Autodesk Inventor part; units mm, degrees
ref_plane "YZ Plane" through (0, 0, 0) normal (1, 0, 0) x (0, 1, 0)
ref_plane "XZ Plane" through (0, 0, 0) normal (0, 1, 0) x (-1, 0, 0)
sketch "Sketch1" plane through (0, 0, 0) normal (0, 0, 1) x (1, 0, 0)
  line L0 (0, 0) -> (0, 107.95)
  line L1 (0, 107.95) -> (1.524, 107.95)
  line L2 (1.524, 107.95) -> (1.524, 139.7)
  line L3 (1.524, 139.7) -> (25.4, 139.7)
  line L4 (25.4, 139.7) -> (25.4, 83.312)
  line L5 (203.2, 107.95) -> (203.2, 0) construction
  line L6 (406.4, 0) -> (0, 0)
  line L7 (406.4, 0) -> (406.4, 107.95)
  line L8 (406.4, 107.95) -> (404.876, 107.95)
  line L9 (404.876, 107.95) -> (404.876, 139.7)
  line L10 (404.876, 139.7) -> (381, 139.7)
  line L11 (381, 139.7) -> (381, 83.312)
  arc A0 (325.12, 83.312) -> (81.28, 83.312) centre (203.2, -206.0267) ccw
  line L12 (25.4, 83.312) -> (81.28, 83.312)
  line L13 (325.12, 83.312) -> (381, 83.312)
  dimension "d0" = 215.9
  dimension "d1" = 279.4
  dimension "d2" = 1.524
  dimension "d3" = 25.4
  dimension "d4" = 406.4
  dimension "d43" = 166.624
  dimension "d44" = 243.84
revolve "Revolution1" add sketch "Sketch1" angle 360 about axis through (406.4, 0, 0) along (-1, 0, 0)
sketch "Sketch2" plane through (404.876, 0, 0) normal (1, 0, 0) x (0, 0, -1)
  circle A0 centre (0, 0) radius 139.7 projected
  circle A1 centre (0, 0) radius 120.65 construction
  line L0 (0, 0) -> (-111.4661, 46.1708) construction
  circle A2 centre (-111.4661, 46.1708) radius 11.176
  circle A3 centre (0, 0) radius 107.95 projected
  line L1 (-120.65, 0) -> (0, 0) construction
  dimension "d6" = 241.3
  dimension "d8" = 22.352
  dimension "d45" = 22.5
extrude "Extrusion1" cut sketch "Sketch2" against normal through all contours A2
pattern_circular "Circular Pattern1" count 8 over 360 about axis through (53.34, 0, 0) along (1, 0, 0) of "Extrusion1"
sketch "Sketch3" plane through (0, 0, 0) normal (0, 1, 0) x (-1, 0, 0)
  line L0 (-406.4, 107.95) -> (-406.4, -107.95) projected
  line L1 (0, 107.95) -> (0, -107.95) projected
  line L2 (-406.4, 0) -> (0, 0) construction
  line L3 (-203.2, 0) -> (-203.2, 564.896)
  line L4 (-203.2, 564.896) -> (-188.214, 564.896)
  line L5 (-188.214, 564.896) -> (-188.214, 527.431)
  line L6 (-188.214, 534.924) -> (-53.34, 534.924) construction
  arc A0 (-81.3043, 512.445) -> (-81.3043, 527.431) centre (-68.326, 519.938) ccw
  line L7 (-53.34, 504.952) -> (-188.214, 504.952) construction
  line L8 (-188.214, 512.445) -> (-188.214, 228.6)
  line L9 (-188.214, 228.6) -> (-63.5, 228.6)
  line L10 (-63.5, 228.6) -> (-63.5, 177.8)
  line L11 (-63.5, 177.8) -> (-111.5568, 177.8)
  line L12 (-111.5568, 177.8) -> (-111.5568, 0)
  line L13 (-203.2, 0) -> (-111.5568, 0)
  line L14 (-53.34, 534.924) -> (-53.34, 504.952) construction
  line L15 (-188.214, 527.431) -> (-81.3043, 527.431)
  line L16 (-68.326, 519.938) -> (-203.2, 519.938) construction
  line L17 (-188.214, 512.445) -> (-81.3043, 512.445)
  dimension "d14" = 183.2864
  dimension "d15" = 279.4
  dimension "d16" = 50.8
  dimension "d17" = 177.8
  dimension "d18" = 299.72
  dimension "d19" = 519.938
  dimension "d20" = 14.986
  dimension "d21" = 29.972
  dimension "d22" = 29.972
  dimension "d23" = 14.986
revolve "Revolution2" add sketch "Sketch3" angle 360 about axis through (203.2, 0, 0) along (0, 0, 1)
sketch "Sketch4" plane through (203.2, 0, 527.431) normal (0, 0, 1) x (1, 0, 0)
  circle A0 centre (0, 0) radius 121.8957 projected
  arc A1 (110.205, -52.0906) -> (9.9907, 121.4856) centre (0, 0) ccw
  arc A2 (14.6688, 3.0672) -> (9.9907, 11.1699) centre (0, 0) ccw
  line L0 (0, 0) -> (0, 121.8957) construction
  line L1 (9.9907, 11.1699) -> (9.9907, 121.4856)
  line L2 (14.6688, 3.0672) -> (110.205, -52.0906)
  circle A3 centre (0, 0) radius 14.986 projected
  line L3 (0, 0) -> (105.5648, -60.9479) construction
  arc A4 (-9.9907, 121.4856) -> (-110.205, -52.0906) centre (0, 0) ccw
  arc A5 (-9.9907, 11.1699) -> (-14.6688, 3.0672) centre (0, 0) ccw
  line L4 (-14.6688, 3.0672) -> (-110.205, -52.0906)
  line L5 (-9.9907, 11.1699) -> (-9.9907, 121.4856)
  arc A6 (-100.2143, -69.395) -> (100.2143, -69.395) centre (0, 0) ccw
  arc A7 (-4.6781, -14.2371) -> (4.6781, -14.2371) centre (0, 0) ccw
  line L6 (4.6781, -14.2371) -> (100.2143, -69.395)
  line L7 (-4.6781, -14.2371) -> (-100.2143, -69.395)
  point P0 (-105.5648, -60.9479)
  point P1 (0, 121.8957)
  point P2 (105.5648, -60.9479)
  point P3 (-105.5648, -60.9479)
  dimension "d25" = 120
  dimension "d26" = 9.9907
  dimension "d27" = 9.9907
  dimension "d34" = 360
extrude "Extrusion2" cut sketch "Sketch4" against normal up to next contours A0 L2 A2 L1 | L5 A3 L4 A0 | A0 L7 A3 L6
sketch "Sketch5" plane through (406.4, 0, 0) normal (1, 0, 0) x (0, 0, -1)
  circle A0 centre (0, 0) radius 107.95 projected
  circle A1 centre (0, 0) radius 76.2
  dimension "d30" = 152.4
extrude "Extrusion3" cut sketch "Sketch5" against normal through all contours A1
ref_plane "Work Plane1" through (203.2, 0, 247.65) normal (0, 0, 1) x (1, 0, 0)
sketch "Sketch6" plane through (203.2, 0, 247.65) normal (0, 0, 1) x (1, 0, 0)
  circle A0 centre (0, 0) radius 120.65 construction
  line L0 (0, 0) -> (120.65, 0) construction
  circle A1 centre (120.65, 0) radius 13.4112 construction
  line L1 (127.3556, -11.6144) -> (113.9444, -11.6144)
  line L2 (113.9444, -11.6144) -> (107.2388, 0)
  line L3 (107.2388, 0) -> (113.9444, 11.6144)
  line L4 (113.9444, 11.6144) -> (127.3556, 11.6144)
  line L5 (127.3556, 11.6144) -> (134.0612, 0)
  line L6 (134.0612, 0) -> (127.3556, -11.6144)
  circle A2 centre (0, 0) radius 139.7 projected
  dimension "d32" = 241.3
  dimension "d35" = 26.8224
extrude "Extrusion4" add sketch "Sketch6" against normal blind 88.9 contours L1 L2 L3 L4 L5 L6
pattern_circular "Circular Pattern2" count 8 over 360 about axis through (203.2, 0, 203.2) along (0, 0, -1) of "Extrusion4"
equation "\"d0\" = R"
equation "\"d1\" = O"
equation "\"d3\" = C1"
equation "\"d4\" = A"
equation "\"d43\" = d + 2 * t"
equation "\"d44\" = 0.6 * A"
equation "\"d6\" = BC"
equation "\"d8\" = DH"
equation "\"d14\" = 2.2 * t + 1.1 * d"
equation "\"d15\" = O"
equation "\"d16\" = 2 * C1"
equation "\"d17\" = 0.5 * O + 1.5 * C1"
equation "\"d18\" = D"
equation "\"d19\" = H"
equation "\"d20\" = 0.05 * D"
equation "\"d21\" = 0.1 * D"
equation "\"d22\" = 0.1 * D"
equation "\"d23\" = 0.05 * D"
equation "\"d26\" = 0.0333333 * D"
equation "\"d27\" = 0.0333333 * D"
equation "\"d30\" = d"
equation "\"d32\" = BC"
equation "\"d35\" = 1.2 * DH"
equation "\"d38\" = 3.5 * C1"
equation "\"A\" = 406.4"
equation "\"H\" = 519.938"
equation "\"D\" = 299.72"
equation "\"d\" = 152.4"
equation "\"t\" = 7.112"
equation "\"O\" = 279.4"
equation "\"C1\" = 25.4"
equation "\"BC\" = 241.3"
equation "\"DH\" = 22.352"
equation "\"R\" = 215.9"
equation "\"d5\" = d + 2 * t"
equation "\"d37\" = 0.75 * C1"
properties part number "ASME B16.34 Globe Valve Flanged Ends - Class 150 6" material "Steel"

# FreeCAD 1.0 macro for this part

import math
import FreeCAD as App
import Part
import Sketcher
Q = App.Units.Quantity


def add_polygon(sketch, points):
    """Adds a closed chain of lines whose ends are joined by coincident constraints."""
    first, n = sketch.GeometryCount, len(points)
    for a, b in zip(points, points[1:] + points[:1]):
        sketch.addGeometry(Part.LineSegment(App.Vector(*a, 0), App.Vector(*b, 0)), False)
    for i in range(n):
        sketch.addConstraint(Sketcher.Constraint("Coincident", first + i, 2, first + (i + 1) % n, 1))

doc = App.newDocument("Part")
body = doc.addObject("PartDesign::Body", "Body")

# Sketch on XY plane
sketch1 = body.newObject("Sketcher::SketchObject", "Sketch")
sketch1.AttachmentSupport = (doc.getObject("XY_Plane"), [""])
sketch1.MapMode = "FlatFace"
sketch1.addGeometry([
    Part.LineSegment(App.Vector(0, 108, 0), App.Vector(0, 0, 0)),  # 0
    Part.LineSegment(App.Vector(0, 0, 0), App.Vector(406.4, 0, 0)),  # 1
    Part.LineSegment(App.Vector(406.4, 0, 0), App.Vector(406.4, 108, 0)),  # 2
    Part.LineSegment(App.Vector(406.4, 108, 0), App.Vector(404.9, 108, 0)),  # 3
    Part.LineSegment(App.Vector(404.9, 108, 0), App.Vector(404.9, 139.7, 0)),  # 4
    Part.LineSegment(App.Vector(404.9, 139.7, 0), App.Vector(381, 139.7, 0)),  # 5
    Part.LineSegment(App.Vector(381, 139.7, 0), App.Vector(381, 83.3, 0)),  # 6
    Part.LineSegment(App.Vector(381, 83.3, 0), App.Vector(325.1, 83.3, 0)),  # 7
    Part.ArcOfCircle(Part.Circle(App.Vector(203.2, -206, 0), App.Vector(0, 0, 1), 314), math.radians(67), math.radians(113)),  # 8
    Part.LineSegment(App.Vector(81.3, 83.3, 0), App.Vector(25.4, 83.3, 0)),  # 9
    Part.LineSegment(App.Vector(25.4, 83.3, 0), App.Vector(25.4, 139.7, 0)),  # 10
    Part.LineSegment(App.Vector(25.4, 139.7, 0), App.Vector(1.5, 139.7, 0)),  # 11
    Part.LineSegment(App.Vector(1.5, 139.7, 0), App.Vector(1.5, 108, 0)),  # 12
    Part.LineSegment(App.Vector(1.5, 108, 0), App.Vector(0, 108, 0)),  # 13
], False)
sketch1.addConstraint([
    Sketcher.Constraint("Coincident", 0, 2, 1, 1),
    Sketcher.Constraint("Coincident", 1, 2, 2, 1),
    Sketcher.Constraint("Coincident", 2, 2, 3, 1),
    Sketcher.Constraint("Coincident", 3, 2, 4, 1),
    Sketcher.Constraint("Coincident", 4, 2, 5, 1),
    Sketcher.Constraint("Coincident", 5, 2, 6, 1),
    Sketcher.Constraint("Coincident", 6, 2, 7, 1),
    Sketcher.Constraint("Coincident", 7, 2, 8, 1),
    Sketcher.Constraint("Coincident", 8, 2, 9, 1),
    Sketcher.Constraint("Coincident", 9, 2, 10, 1),
    Sketcher.Constraint("Coincident", 10, 2, 11, 1),
    Sketcher.Constraint("Coincident", 11, 2, 12, 1),
    Sketcher.Constraint("Coincident", 12, 2, 13, 1),
    Sketcher.Constraint("Coincident", 13, 2, 0, 1),
    Sketcher.Constraint("Vertical", 0),
    Sketcher.Constraint("Horizontal", 1),
    Sketcher.Constraint("Vertical", 2),
    Sketcher.Constraint("Horizontal", 3),
    Sketcher.Constraint("Vertical", 4),
    Sketcher.Constraint("Horizontal", 5),
    Sketcher.Constraint("Vertical", 6),
    Sketcher.Constraint("Horizontal", 7),
    Sketcher.Constraint("Horizontal", 9),
    Sketcher.Constraint("Vertical", 10),
    Sketcher.Constraint("Horizontal", 11),
    Sketcher.Constraint("Vertical", 12),
    Sketcher.Constraint("Horizontal", 13),
    Sketcher.Constraint("Coincident", 0, 2, -1, 1),
    Sketcher.Constraint("Horizontal", 7, 2, 8, 2),
    Sketcher.Constraint("Horizontal", 5, 2, 10, 2),
    Sketcher.Constraint("Horizontal", 3, 2, 12, 2),
    Sketcher.Constraint("Equal", 7, 9),
    Sketcher.Constraint("Equal", 5, 11),
    Sketcher.Constraint("Equal", 3, 13),
    Sketcher.Constraint("DistanceX", 1, 1, 1, 2, Q("16 in")),
    Sketcher.Constraint("DistanceX", -1, 1, 9, 2, Q("1 in")),
    Sketcher.Constraint("DistanceX", 3, 2, 3, 1, Q("0.06 in")),
    Sketcher.Constraint("DistanceX", 8, 2, 7, 2, Q("9.6 in")),
    Sketcher.Constraint("DistanceY", 0, 2, 0, 1, Q("4.25 in")),
    Sketcher.Constraint("DistanceY", 4, 1, 4, 2, Q("1.25 in")),
    Sketcher.Constraint("DistanceY", 6, 2, 6, 1, Q("2.22 in")),
    Sketcher.Constraint("Radius", 8, 313.9767),
])
revolution = body.newObject("PartDesign::Revolution", "Revolution")
revolution.Profile = sketch1
revolution.ReferenceAxis = (sketch1, ["H_Axis"])
revolution.Angle = 360

# Sketch on YZ plane
sketch2 = body.newObject("Sketcher::SketchObject", "Sketch001")
sketch2.AttachmentSupport = (doc.getObject("YZ_Plane"), [""])
sketch2.MapMode = "FlatFace"
sketch2.AttachmentOffset = App.Placement(App.Vector(0, 0, 15.94 * 25.4), App.Rotation())
sketch2.addGeometry(Part.Circle(App.Vector(46, 111, 0), App.Vector(0, 0, 1), 11), False)
sketch2.addConstraint([
    Sketcher.Constraint("Diameter", 0, Q("0.88 in")),
    Sketcher.Constraint("DistanceX", -1, 1, 0, 3, 46.1708),
    Sketcher.Constraint("DistanceY", -1, 1, 0, 3, 111.466),
])
pocket1 = body.newObject("PartDesign::Pocket", "Pocket")
pocket1.Profile = sketch2
pocket1.Type = "ThroughAll"
doc.recompute()

polarpattern = body.newObject("PartDesign::PolarPattern", "PolarPattern")
polarpattern.Originals = [pocket1]
polarpattern.Axis = (doc.getObject("X_Axis"), [""])
polarpattern.Angle = 360
polarpattern.Occurrences = 8
body.Tip = polarpattern

# Sketch on XZ plane
sketch3 = body.newObject("Sketcher::SketchObject", "Sketch002")
sketch3.AttachmentSupport = (doc.getObject("XZ_Plane"), [""])
sketch3.MapMode = "FlatFace"
sketch3.addGeometry([
    Part.LineSegment(App.Vector(203, 565, 0), App.Vector(203, 0, 0)),  # 0
    Part.LineSegment(App.Vector(203, 0, 0), App.Vector(112, 0, 0)),  # 1
    Part.LineSegment(App.Vector(112, 0, 0), App.Vector(112, 178, 0)),  # 2
    Part.LineSegment(App.Vector(112, 178, 0), App.Vector(64, 178, 0)),  # 3
    Part.LineSegment(App.Vector(64, 178, 0), App.Vector(64, 229, 0)),  # 4
    Part.LineSegment(App.Vector(64, 229, 0), App.Vector(188, 229, 0)),  # 5
    Part.LineSegment(App.Vector(188, 229, 0), App.Vector(188, 512, 0)),  # 6
    Part.LineSegment(App.Vector(188, 512, 0), App.Vector(81, 512, 0)),  # 7
    Part.ArcOfCircle(Part.Circle(App.Vector(68, 520, 0), App.Vector(0, 0, 1), 15), math.radians(30), math.radians(330)),  # 8
    Part.LineSegment(App.Vector(81, 527, 0), App.Vector(188, 527, 0)),  # 9
    Part.LineSegment(App.Vector(188, 527, 0), App.Vector(188, 565, 0)),  # 10
    Part.LineSegment(App.Vector(188, 565, 0), App.Vector(203, 565, 0)),  # 11
], False)
sketch3.addGeometry(Part.LineSegment(App.Vector(203, 0, 0), App.Vector(203, 565, 0)), True)  # axis
sketch3.addConstraint([
    Sketcher.Constraint("Coincident", 0, 2, 1, 1),
    Sketcher.Constraint("Coincident", 1, 2, 2, 1),
    Sketcher.Constraint("Coincident", 2, 2, 3, 1),
    Sketcher.Constraint("Coincident", 3, 2, 4, 1),
    Sketcher.Constraint("Coincident", 4, 2, 5, 1),
    Sketcher.Constraint("Coincident", 5, 2, 6, 1),
    Sketcher.Constraint("Coincident", 6, 2, 7, 1),
    Sketcher.Constraint("Coincident", 7, 2, 8, 2),
    Sketcher.Constraint("Coincident", 8, 1, 9, 1),
    Sketcher.Constraint("Coincident", 9, 2, 10, 1),
    Sketcher.Constraint("Coincident", 10, 2, 11, 1),
    Sketcher.Constraint("Coincident", 11, 2, 0, 1),
    Sketcher.Constraint("Vertical", 0),
    Sketcher.Constraint("Horizontal", 1),
    Sketcher.Constraint("Vertical", 2),
    Sketcher.Constraint("Horizontal", 3),
    Sketcher.Constraint("Vertical", 4),
    Sketcher.Constraint("Horizontal", 5),
    Sketcher.Constraint("Vertical", 6),
    Sketcher.Constraint("Horizontal", 7),
    Sketcher.Constraint("Horizontal", 9),
    Sketcher.Constraint("Vertical", 10),
    Sketcher.Constraint("Horizontal", 11),
    Sketcher.Constraint("Vertical", 12),
    Sketcher.Constraint("Coincident", 12, 1, 0, 2),
    Sketcher.Constraint("PointOnObject", 0, 2, -1),
    Sketcher.Constraint("Horizontal", 10, 2, 12, 2),
    Sketcher.Constraint("Vertical", 7, 2, 8, 1),
    Sketcher.Constraint("Vertical", 6, 2, 9, 2),
    Sketcher.Constraint("DistanceY", 2, 1, 2, 2, Q("7 in")),
    Sketcher.Constraint("DistanceY", 4, 1, 4, 2, Q("2 in")),
    Sketcher.Constraint("Radius", 8, Q("0.59 in")),
    Sketcher.Constraint("DistanceX", 11, 1, 11, 2, Q("0.59 in")),
    Sketcher.Constraint("DistanceY", -1, 1, 8, 3, Q("20.47 in")),
    Sketcher.Constraint("DistanceY", 7, 2, 8, 1, Q("0.59 in")),
    Sketcher.Constraint("DistanceX", -1, 1, 0, 2, Q("8 in")),
    Sketcher.Constraint("DistanceX", 5, 1, 5, 2, Q("4.91 in")),
    Sketcher.Constraint("DistanceY", 0, 2, 0, 1, Q("22.24 in")),
    Sketcher.Constraint("DistanceX", 1, 2, 1, 1, Q("3.608 in")),
    Sketcher.Constraint("DistanceX", -1, 1, 8, 3, Q("2.69 in")),
])
revolution2 = body.newObject("PartDesign::Revolution", "Revolution001")
revolution2.Profile = sketch3
revolution2.ReferenceAxis = (sketch3, ["Axis0"])
revolution2.Angle = 360

# Sketch on XY plane
sketch4 = body.newObject("Sketcher::SketchObject", "Sketch003")
sketch4.AttachmentSupport = (doc.getObject("XY_Plane"), [""])
sketch4.MapMode = "FlatFace"
sketch4.AttachmentOffset = App.Placement(App.Vector(0, 0, 20.765 * 25.4), App.Rotation())
sketch4.addGeometry([
    Part.ArcOfCircle(Part.Circle(App.Vector(203, 0, 0), App.Vector(0, 0, 1), 122), math.radians(-25), math.radians(85)),  # 0
    Part.LineSegment(App.Vector(213, 121, 0), App.Vector(213, 11, 0)),  # 1
    Part.ArcOfCircle(Part.Circle(App.Vector(203, 0, 0), App.Vector(0, 0, 1), 15), math.radians(12), math.radians(48)),  # 2
    Part.LineSegment(App.Vector(218, 3, 0), App.Vector(313, -52, 0)),  # 3
    Part.LineSegment(App.Vector(193, 11, 0), App.Vector(193, 121, 0)),  # 4
    Part.ArcOfCircle(Part.Circle(App.Vector(203, 0, 0), App.Vector(0, 0, 1), 122), math.radians(95), math.radians(205)),  # 5
    Part.LineSegment(App.Vector(93, -52, 0), App.Vector(189, 3, 0)),  # 6
    Part.ArcOfCircle(Part.Circle(App.Vector(203, 0, 0), App.Vector(0, 0, 1), 15), math.radians(132), math.radians(168)),  # 7
    Part.ArcOfCircle(Part.Circle(App.Vector(203, 0, 0), App.Vector(0, 0, 1), 122), math.radians(-145), math.radians(-35)),  # 8
    Part.LineSegment(App.Vector(303, -69, 0), App.Vector(208, -14, 0)),  # 9
    Part.ArcOfCircle(Part.Circle(App.Vector(203, 0, 0), App.Vector(0, 0, 1), 15), math.radians(-108), math.radians(-72)),  # 10
    Part.LineSegment(App.Vector(199, -14, 0), App.Vector(103, -69, 0)),  # 11
], False)
sketch4.addConstraint([
    Sketcher.Constraint("Coincident", 0, 2, 1, 1),
    Sketcher.Constraint("Coincident", 1, 2, 2, 2),
    Sketcher.Constraint("Coincident", 2, 1, 3, 1),
    Sketcher.Constraint("Coincident", 3, 2, 0, 1),
    Sketcher.Constraint("Coincident", 4, 2, 5, 1),
    Sketcher.Constraint("Coincident", 5, 2, 6, 1),
    Sketcher.Constraint("Coincident", 6, 2, 7, 2),
    Sketcher.Constraint("Coincident", 7, 1, 4, 1),
    Sketcher.Constraint("Coincident", 8, 2, 9, 1),
    Sketcher.Constraint("Coincident", 9, 2, 10, 2),
    Sketcher.Constraint("Coincident", 10, 1, 11, 1),
    Sketcher.Constraint("Coincident", 11, 2, 8, 1),
    Sketcher.Constraint("Vertical", 1),
    Sketcher.Constraint("Vertical", 4),
    Sketcher.Constraint("Coincident", 2, 3, 0, 3),
    Sketcher.Constraint("Coincident", 5, 3, 0, 3),
    Sketcher.Constraint("Coincident", 7, 3, 0, 3),
    Sketcher.Constraint("Coincident", 8, 3, 0, 3),
    Sketcher.Constraint("Coincident", 10, 3, 0, 3),
    Sketcher.Constraint("Equal", 0, 5),
    Sketcher.Constraint("Equal", 2, 7),
    Sketcher.Constraint("Equal", 5, 8),
    Sketcher.Constraint("Equal", 7, 10),
    Sketcher.Constraint("PointOnObject", 0, 3, -1),
    Sketcher.Constraint("Parallel", 3, 9),
    Sketcher.Constraint("Parallel", 6, 11),
    Sketcher.Constraint("Horizontal", 0, 2, 4, 2),
    Sketcher.Constraint("Horizontal", 3, 2, 5, 2),
    Sketcher.Constraint("Horizontal", 2, 1, 6, 2),
    Sketcher.Constraint("Horizontal", 9, 2, 10, 1),
    Sketcher.Constraint("Equal", 6, 9),
    Sketcher.Constraint("Radius", 2, Q("0.59 in")),
    Sketcher.Constraint("DistanceX", -1, 1, 0, 3, Q("8 in")),
    Sketcher.Constraint("Angle", 3, Q("-30 deg")),
    Sketcher.Constraint("Radius", 0, 121.8957),
    Sketcher.Constraint("DistanceX", 0, 3, 0, 2, 9.9907),
    Sketcher.Constraint("DistanceX", 8, 2, 3, 2, 9.9907),
])
pocket2 = body.newObject("PartDesign::Pocket", "Pocket001")
pocket2.Profile = sketch4
pocket2.Length = Q("0.59 in")

# Sketch on YZ plane
sketch5 = body.newObject("Sketcher::SketchObject", "Sketch004")
sketch5.AttachmentSupport = (doc.getObject("YZ_Plane"), [""])
sketch5.MapMode = "FlatFace"
sketch5.AttachmentOffset = App.Placement(App.Vector(0, 0, 16 * 25.4), App.Rotation())
sketch5.addGeometry(Part.Circle(App.Vector(0, 0, 0), App.Vector(0, 0, 1), 76), False)
sketch5.addConstraint([
    Sketcher.Constraint("Coincident", 0, 3, -1, 1),
    Sketcher.Constraint("Diameter", 0, Q("6 in")),
])
pocket3 = body.newObject("PartDesign::Pocket", "Pocket002")
pocket3.Profile = sketch5
pocket3.Type = "ThroughAll"

# Sketch on XY plane
sketch6 = body.newObject("Sketcher::SketchObject", "Sketch005")
sketch6.AttachmentSupport = (doc.getObject("XY_Plane"), [""])
sketch6.MapMode = "FlatFace"
sketch6.AttachmentOffset = App.Placement(App.Vector(0, 0, 9.75 * 25.4), App.Rotation())
add_polygon(sketch6, [(317, -12), (331, -12), (337, 0), (331, 12), (317, 12), (310, 0)])  # lines 0-5
sketch6.addConstraint([
    Sketcher.Constraint("Horizontal", 0),
    Sketcher.Constraint("Horizontal", 3),
    Sketcher.Constraint("Symmetric", 0, 2, 2, 2, -1),
    Sketcher.Constraint("PointOnObject", 1, 2, -1),
    Sketcher.Constraint("PointOnObject", 4, 2, -1),
    Sketcher.Constraint("Parallel", 1, 4),
    Sketcher.Constraint("Parallel", 2, 5),
    Sketcher.Constraint("Angle", 1, Q("60 deg")),
    Sketcher.Constraint("DistanceX", 4, 2, 1, 2, Q("1.056 in")),
    Sketcher.Constraint("DistanceX", 0, 1, 0, 2, Q("0.528 in")),
    Sketcher.Constraint("DistanceX", -1, 1, 0, 2, Q("13.014 in")),
])
pad1 = body.newObject("PartDesign::Pad", "Pad")
pad1.Profile = sketch6
pad1.Length = Q("3.5 in")
pad1.Reversed = True
doc.recompute()

datumline = body.newObject("PartDesign::Line", "DatumLine")
datumline.Placement = App.Placement(App.Vector(203.2, 0, 0), App.Rotation(App.Vector(0, 0, 1), App.Vector(0, 0, 1)))
polarpattern2 = body.newObject("PartDesign::PolarPattern", "PolarPattern001")
polarpattern2.Originals = [pad1]
polarpattern2.Axis = (datumline, [""])
polarpattern2.Angle = 360
polarpattern2.Occurrences = 8
body.Tip = polarpattern2

doc.recompute()
